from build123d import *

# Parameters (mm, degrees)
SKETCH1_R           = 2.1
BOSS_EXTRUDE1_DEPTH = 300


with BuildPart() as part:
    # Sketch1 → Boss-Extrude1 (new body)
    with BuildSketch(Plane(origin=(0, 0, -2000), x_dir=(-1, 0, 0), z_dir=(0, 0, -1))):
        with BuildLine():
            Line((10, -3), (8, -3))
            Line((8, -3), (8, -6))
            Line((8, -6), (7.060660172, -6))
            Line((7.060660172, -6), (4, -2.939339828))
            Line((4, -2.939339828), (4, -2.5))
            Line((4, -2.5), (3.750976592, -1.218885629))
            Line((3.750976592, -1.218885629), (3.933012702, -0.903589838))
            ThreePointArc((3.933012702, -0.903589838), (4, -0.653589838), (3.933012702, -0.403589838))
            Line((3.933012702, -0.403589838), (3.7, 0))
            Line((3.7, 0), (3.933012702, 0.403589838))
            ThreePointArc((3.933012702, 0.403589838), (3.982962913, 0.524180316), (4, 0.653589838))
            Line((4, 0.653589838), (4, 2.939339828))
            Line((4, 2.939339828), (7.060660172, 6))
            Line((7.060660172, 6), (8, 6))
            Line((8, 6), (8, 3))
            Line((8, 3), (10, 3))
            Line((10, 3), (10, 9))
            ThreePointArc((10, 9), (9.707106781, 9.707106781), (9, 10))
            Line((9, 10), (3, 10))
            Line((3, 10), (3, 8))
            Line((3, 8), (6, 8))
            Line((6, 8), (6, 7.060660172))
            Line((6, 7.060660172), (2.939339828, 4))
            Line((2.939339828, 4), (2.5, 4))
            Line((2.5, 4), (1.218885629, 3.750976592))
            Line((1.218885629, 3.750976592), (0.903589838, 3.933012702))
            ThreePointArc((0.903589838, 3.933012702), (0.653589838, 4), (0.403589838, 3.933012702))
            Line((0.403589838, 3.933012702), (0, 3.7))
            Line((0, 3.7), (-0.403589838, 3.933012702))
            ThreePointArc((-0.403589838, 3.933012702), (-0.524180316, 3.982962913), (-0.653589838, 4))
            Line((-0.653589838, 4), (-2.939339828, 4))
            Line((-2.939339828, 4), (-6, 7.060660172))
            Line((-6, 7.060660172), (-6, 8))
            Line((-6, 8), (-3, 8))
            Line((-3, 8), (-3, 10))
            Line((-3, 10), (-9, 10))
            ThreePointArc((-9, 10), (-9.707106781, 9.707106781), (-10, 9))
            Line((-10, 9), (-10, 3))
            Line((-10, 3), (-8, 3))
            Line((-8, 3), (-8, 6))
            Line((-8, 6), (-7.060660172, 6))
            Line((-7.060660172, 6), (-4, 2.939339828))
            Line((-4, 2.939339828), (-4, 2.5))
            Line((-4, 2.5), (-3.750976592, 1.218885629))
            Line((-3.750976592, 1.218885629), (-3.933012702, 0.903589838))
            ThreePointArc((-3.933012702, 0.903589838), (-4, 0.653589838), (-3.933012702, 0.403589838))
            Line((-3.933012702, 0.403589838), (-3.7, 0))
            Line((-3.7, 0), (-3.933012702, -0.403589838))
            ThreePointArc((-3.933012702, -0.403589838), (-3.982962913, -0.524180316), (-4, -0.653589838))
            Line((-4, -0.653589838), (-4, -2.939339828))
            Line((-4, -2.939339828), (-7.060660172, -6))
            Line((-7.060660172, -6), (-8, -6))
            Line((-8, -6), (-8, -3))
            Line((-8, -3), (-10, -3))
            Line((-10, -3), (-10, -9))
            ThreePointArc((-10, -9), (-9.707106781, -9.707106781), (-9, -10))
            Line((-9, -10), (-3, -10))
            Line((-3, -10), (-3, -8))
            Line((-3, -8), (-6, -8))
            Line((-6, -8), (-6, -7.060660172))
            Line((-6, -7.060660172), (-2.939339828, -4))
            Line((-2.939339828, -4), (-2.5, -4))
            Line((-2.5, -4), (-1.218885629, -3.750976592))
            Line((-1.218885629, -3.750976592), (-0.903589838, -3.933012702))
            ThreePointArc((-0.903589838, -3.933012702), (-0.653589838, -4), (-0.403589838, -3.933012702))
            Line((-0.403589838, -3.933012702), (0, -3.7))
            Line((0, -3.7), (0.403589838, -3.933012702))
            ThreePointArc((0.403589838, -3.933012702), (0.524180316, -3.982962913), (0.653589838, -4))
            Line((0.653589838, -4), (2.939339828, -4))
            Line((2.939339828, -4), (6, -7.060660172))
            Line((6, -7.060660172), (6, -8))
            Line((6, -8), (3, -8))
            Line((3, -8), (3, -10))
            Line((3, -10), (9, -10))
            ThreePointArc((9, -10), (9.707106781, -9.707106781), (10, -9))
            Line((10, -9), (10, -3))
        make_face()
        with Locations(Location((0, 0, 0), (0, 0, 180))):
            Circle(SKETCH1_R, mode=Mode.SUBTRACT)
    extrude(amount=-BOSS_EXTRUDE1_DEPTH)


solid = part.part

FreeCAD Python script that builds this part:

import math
import FreeCAD as App
import Part
import Sketcher
Q = App.Units.Quantity

doc = App.newDocument("Part")
body = doc.addObject("PartDesign::Body", "Body")

sketch1 = body.newObject("Sketcher::SketchObject", "Sketch")
sketch1.AttachmentSupport = (doc.getObject("XY_Plane"), [""])
sketch1.MapMode = "FlatFace"
sketch1.AttachmentOffset = App.Placement(App.Vector(0, 0, -2000), App.Rotation())
sketch1.addGeometry(Part.LineSegment(App.Vector(-10, -3, 0), App.Vector(-8, -3, 0)), False)
sketch1.addGeometry(Part.LineSegment(App.Vector(-8, -3, 0), App.Vector(-8, -6, 0)), False)
sketch1.addGeometry(Part.LineSegment(App.Vector(-8, -6, 0), App.Vector(-7.06, -6, 0)), False)
sketch1.addGeometry(Part.LineSegment(App.Vector(-7.06, -6, 0), App.Vector(-4, -2.94, 0)), False)
sketch1.addGeometry(Part.LineSegment(App.Vector(-4, -2.94, 0), App.Vector(-4, -2.5, 0)), False)
sketch1.addGeometry(Part.LineSegment(App.Vector(-4, -2.5, 0), App.Vector(-3.75, -1.22, 0)), False)
sketch1.addGeometry(Part.LineSegment(App.Vector(-3.75, -1.22, 0), App.Vector(-3.93, -0.9, 0)), False)
sketch1.addGeometry(Part.ArcOfCircle(Part.Circle(App.Vector(-3.5, -0.65, 0), App.Vector(0, 0, 1), 0.5), math.radians(150), math.radians(210)), False)
sketch1.addGeometry(Part.LineSegment(App.Vector(-3.93, -0.4, 0), App.Vector(-3.7, 0, 0)), False)
sketch1.addGeometry(Part.LineSegment(App.Vector(-3.7, 0, 0), App.Vector(-3.93, 0.4, 0)), False)
sketch1.addGeometry(Part.ArcOfCircle(Part.Circle(App.Vector(-3.5, 0.65, 0), App.Vector(0, 0, 1), 0.5), math.radians(-180), math.radians(-150)), False)
sketch1.addGeometry(Part.LineSegment(App.Vector(-4, 0.65, 0), App.Vector(-4, 2.94, 0)), False)
sketch1.addGeometry(Part.LineSegment(App.Vector(-4, 2.94, 0), App.Vector(-7.06, 6, 0)), False)
sketch1.addGeometry(Part.LineSegment(App.Vector(-7.06, 6, 0), App.Vector(-8, 6, 0)), False)
sketch1.addGeometry(Part.LineSegment(App.Vector(-8, 6, 0), App.Vector(-8, 3, 0)), False)
sketch1.addGeometry(Part.LineSegment(App.Vector(-8, 3, 0), App.Vector(-10, 3, 0)), False)
sketch1.addGeometry(Part.LineSegment(App.Vector(-10, 3, 0), App.Vector(-10, 9, 0)), False)
sketch1.addGeometry(Part.ArcOfCircle(Part.Circle(App.Vector(-9, 9, 0), App.Vector(0, 0, 1), 1), math.radians(90), math.radians(180)), False)
sketch1.addGeometry(Part.LineSegment(App.Vector(-9, 10, 0), App.Vector(-3, 10, 0)), False)
sketch1.addGeometry(Part.LineSegment(App.Vector(-3, 10, 0), App.Vector(-3, 8, 0)), False)
sketch1.addGeometry(Part.LineSegment(App.Vector(-3, 8, 0), App.Vector(-6, 8, 0)), False)
sketch1.addGeometry(Part.LineSegment(App.Vector(-6, 8, 0), App.Vector(-6, 7.06, 0)), False)
sketch1.addGeometry(Part.LineSegment(App.Vector(-6, 7.06, 0), App.Vector(-2.94, 4, 0)), False)
sketch1.addGeometry(Part.LineSegment(App.Vector(-2.94, 4, 0), App.Vector(-2.5, 4, 0)), False)
sketch1.addGeometry(Part.LineSegment(App.Vector(-2.5, 4, 0), App.Vector(-1.22, 3.75, 0)), False)
sketch1.addGeometry(Part.LineSegment(App.Vector(-1.22, 3.75, 0), App.Vector(-0.9, 3.93, 0)), False)
sketch1.addGeometry(Part.ArcOfCircle(Part.Circle(App.Vector(-0.65, 3.5, 0), App.Vector(0, 0, 1), 0.5), math.radians(60), math.radians(120)), False)
sketch1.addGeometry(Part.LineSegment(App.Vector(-0.4, 3.93, 0), App.Vector(0, 3.7, 0)), False)
sketch1.addGeometry(Part.LineSegment(App.Vector(0, 3.7, 0), App.Vector(0.4, 3.93, 0)), False)
sketch1.addGeometry(Part.ArcOfCircle(Part.Circle(App.Vector(0.65, 3.5, 0), App.Vector(0, 0, 1), 0.5), math.radians(90), math.radians(120)), False)
sketch1.addGeometry(Part.LineSegment(App.Vector(0.65, 4, 0), App.Vector(2.94, 4, 0)), False)
sketch1.addGeometry(Part.LineSegment(App.Vector(2.94, 4, 0), App.Vector(6, 7.06, 0)), False)
sketch1.addGeometry(Part.LineSegment(App.Vector(6, 7.06, 0), App.Vector(6, 8, 0)), False)
sketch1.addGeometry(Part.LineSegment(App.Vector(6, 8, 0), App.Vector(3, 8, 0)), False)
sketch1.addGeometry(Part.LineSegment(App.Vector(3, 8, 0), App.Vector(3, 10, 0)), False)
sketch1.addGeometry(Part.LineSegment(App.Vector(3, 10, 0), App.Vector(9, 10, 0)), False)
sketch1.addGeometry(Part.ArcOfCircle(Part.Circle(App.Vector(9, 9, 0), App.Vector(0, 0, 1), 1), math.radians(0), math.radians(90)), False)
sketch1.addGeometry(Part.LineSegment(App.Vector(10, 9, 0), App.Vector(10, 3, 0)), False)
sketch1.addGeometry(Part.LineSegment(App.Vector(10, 3, 0), App.Vector(8, 3, 0)), False)
sketch1.addGeometry(Part.LineSegment(App.Vector(8, 3, 0), App.Vector(8, 6, 0)), False)
sketch1.addGeometry(Part.LineSegment(App.Vector(8, 6, 0), App.Vector(7.06, 6, 0)), False)
sketch1.addGeometry(Part.LineSegment(App.Vector(7.06, 6, 0), App.Vector(4, 2.94, 0)), False)
sketch1.addGeometry(Part.LineSegment(App.Vector(4, 2.94, 0), App.Vector(4, 2.5, 0)), False)
sketch1.addGeometry(Part.LineSegment(App.Vector(4, 2.5, 0), App.Vector(3.75, 1.22, 0)), False)
sketch1.addGeometry(Part.LineSegment(App.Vector(3.75, 1.22, 0), App.Vector(3.93, 0.9, 0)), False)
sketch1.addGeometry(Part.ArcOfCircle(Part.Circle(App.Vector(3.5, 0.65, 0), App.Vector(0, 0, 1), 0.5), math.radians(-30), math.radians(30)), False)
sketch1.addGeometry(Part.LineSegment(App.Vector(3.93, 0.4, 0), App.Vector(3.7, 0, 0)), False)
sketch1.addGeometry(Part.LineSegment(App.Vector(3.7, 0, 0), App.Vector(3.93, -0.4, 0)), False)
sketch1.addGeometry(Part.ArcOfCircle(Part.Circle(App.Vector(3.5, -0.65, 0), App.Vector(0, 0, 1), 0.5), math.radians(0), math.radians(30)), False)
sketch1.addGeometry(Part.LineSegment(App.Vector(4, -0.65, 0), App.Vector(4, -2.94, 0)), False)
sketch1.addGeometry(Part.LineSegment(App.Vector(4, -2.94, 0), App.Vector(7.06, -6, 0)), False)
sketch1.addGeometry(Part.LineSegment(App.Vector(7.06, -6, 0), App.Vector(8, -6, 0)), False)
sketch1.addGeometry(Part.LineSegment(App.Vector(8, -6, 0), App.Vector(8, -3, 0)), False)
sketch1.addGeometry(Part.LineSegment(App.Vector(8, -3, 0), App.Vector(10, -3, 0)), False)
sketch1.addGeometry(Part.LineSegment(App.Vector(10, -3, 0), App.Vector(10, -9, 0)), False)
sketch1.addGeometry(Part.ArcOfCircle(Part.Circle(App.Vector(9, -9, 0), App.Vector(0, 0, 1), 1), math.radians(-90), math.radians(0)), False)
sketch1.addGeometry(Part.LineSegment(App.Vector(9, -10, 0), App.Vector(3, -10, 0)), False)
sketch1.addGeometry(Part.LineSegment(App.Vector(3, -10, 0), App.Vector(3, -8, 0)), False)
sketch1.addGeometry(Part.LineSegment(App.Vector(3, -8, 0), App.Vector(6, -8, 0)), False)
sketch1.addGeometry(Part.LineSegment(App.Vector(6, -8, 0), App.Vector(6, -7.06, 0)), False)
sketch1.addGeometry(Part.LineSegment(App.Vector(6, -7.06, 0), App.Vector(2.94, -4, 0)), False)
sketch1.addGeometry(Part.LineSegment(App.Vector(2.94, -4, 0), App.Vector(2.5, -4, 0)), False)
sketch1.addGeometry(Part.LineSegment(App.Vector(2.5, -4, 0), App.Vector(1.22, -3.75, 0)), False)
sketch1.addGeometry(Part.LineSegment(App.Vector(1.22, -3.75, 0), App.Vector(0.9, -3.93, 0)), False)
sketch1.addGeometry(Part.ArcOfCircle(Part.Circle(App.Vector(0.65, -3.5, 0), App.Vector(0, 0, 1), 0.5), math.radians(-120), math.radians(-60)), False)
sketch1.addGeometry(Part.LineSegment(App.Vector(0.4, -3.93, 0), App.Vector(0, -3.7, 0)), False)
sketch1.addGeometry(Part.LineSegment(App.Vector(0, -3.7, 0), App.Vector(-0.4, -3.93, 0)), False)
sketch1.addGeometry(Part.ArcOfCircle(Part.Circle(App.Vector(-0.65, -3.5, 0), App.Vector(0, 0, 1), 0.5), math.radians(-90), math.radians(-60)), False)
sketch1.addGeometry(Part.LineSegment(App.Vector(-0.65, -4, 0), App.Vector(-2.94, -4, 0)), False)
sketch1.addGeometry(Part.LineSegment(App.Vector(-2.94, -4, 0), App.Vector(-6, -7.06, 0)), False)
sketch1.addGeometry(Part.LineSegment(App.Vector(-6, -7.06, 0), App.Vector(-6, -8, 0)), False)
sketch1.addGeometry(Part.LineSegment(App.Vector(-6, -8, 0), App.Vector(-3, -8, 0)), False)
sketch1.addGeometry(Part.LineSegment(App.Vector(-3, -8, 0), App.Vector(-3, -10, 0)), False)
sketch1.addGeometry(Part.LineSegment(App.Vector(-3, -10, 0), App.Vector(-9, -10, 0)), False)
sketch1.addGeometry(Part.ArcOfCircle(Part.Circle(App.Vector(-9, -9, 0), App.Vector(0, 0, 1), 1), math.radians(-180), math.radians(-90)), False)
sketch1.addGeometry(Part.LineSegment(App.Vector(-10, -9, 0), App.Vector(-10, -3, 0)), False)
sketch1.addGeometry(Part.Circle(App.Vector(0, 0, 0), App.Vector(0, 0, 1), 2.1), False)
sketch1.addConstraint(Sketcher.Constraint("Coincident", 0, 2, 1, 1))
sketch1.addConstraint(Sketcher.Constraint("Coincident", 1, 2, 2, 1))
sketch1.addConstraint(Sketcher.Constraint("Coincident", 2, 2, 3, 1))
sketch1.addConstraint(Sketcher.Constraint("Coincident", 3, 2, 4, 1))
sketch1.addConstraint(Sketcher.Constraint("Coincident", 4, 2, 5, 1))
sketch1.addConstraint(Sketcher.Constraint("Coincident", 5, 2, 6, 1))
sketch1.addConstraint(Sketcher.Constraint("Tangent", 6, 2, 7, 2))
sketch1.addConstraint(Sketcher.Constraint("Tangent", 7, 1, 8, 1))
sketch1.addConstraint(Sketcher.Constraint("Coincident", 8, 2, 9, 1))
sketch1.addConstraint(Sketcher.Constraint("Tangent", 9, 2, 10, 2))
sketch1.addConstraint(Sketcher.Constraint("Tangent", 10, 1, 11, 1))
sketch1.addConstraint(Sketcher.Constraint("Coincident", 11, 2, 12, 1))
sketch1.addConstraint(Sketcher.Constraint("Coincident", 12, 2, 13, 1))
sketch1.addConstraint(Sketcher.Constraint("Coincident", 13, 2, 14, 1))
sketch1.addConstraint(Sketcher.Constraint("Coincident", 14, 2, 15, 1))
sketch1.addConstraint(Sketcher.Constraint("Coincident", 15, 2, 16, 1))
sketch1.addConstraint(Sketcher.Constraint("Tangent", 16, 2, 17, 2))
sketch1.addConstraint(Sketcher.Constraint("Tangent", 17, 1, 18, 1))
sketch1.addConstraint(Sketcher.Constraint("Coincident", 18, 2, 19, 1))
sketch1.addConstraint(Sketcher.Constraint("Coincident", 19, 2, 20, 1))
sketch1.addConstraint(Sketcher.Constraint("Coincident", 20, 2, 21, 1))
sketch1.addConstraint(Sketcher.Constraint("Coincident", 21, 2, 22, 1))
sketch1.addConstraint(Sketcher.Constraint("Coincident", 22, 2, 23, 1))
sketch1.addConstraint(Sketcher.Constraint("Coincident", 23, 2, 24, 1))
sketch1.addConstraint(Sketcher.Constraint("Coincident", 24, 2, 25, 1))
sketch1.addConstraint(Sketcher.Constraint("Tangent", 25, 2, 26, 2))
sketch1.addConstraint(Sketcher.Constraint("Tangent", 26, 1, 27, 1))
sketch1.addConstraint(Sketcher.Constraint("Coincident", 27, 2, 28, 1))
sketch1.addConstraint(Sketcher.Constraint("Tangent", 28, 2, 29, 2))
sketch1.addConstraint(Sketcher.Constraint("Tangent", 29, 1, 30, 1))
sketch1.addConstraint(Sketcher.Constraint("Coincident", 30, 2, 31, 1))
sketch1.addConstraint(Sketcher.Constraint("Coincident", 31, 2, 32, 1))
sketch1.addConstraint(Sketcher.Constraint("Coincident", 32, 2, 33, 1))
sketch1.addConstraint(Sketcher.Constraint("Coincident", 33, 2, 34, 1))
sketch1.addConstraint(Sketcher.Constraint("Coincident", 34, 2, 35, 1))
sketch1.addConstraint(Sketcher.Constraint("Tangent", 35, 2, 36, 2))
sketch1.addConstraint(Sketcher.Constraint("Tangent", 36, 1, 37, 1))
sketch1.addConstraint(Sketcher.Constraint("Coincident", 37, 2, 38, 1))
sketch1.addConstraint(Sketcher.Constraint("Coincident", 38, 2, 39, 1))
sketch1.addConstraint(Sketcher.Constraint("Coincident", 39, 2, 40, 1))
sketch1.addConstraint(Sketcher.Constraint("Coincident", 40, 2, 41, 1))
sketch1.addConstraint(Sketcher.Constraint("Coincident", 41, 2, 42, 1))
sketch1.addConstraint(Sketcher.Constraint("Coincident", 42, 2, 43, 1))
sketch1.addConstraint(Sketcher.Constraint("Coincident", 43, 2, 44, 1))
sketch1.addConstraint(Sketcher.Constraint("Tangent", 44, 2, 45, 2))
sketch1.addConstraint(Sketcher.Constraint("Tangent", 45, 1, 46, 1))
sketch1.addConstraint(Sketcher.Constraint("Coincident", 46, 2, 47, 1))
sketch1.addConstraint(Sketcher.Constraint("Tangent", 47, 2, 48, 2))
sketch1.addConstraint(Sketcher.Constraint("Tangent", 48, 1, 49, 1))
sketch1.addConstraint(Sketcher.Constraint("Coincident", 49, 2, 50, 1))
sketch1.addConstraint(Sketcher.Constraint("Coincident", 50, 2, 51, 1))
sketch1.addConstraint(Sketcher.Constraint("Coincident", 51, 2, 52, 1))
sketch1.addConstraint(Sketcher.Constraint("Coincident", 52, 2, 53, 1))
sketch1.addConstraint(Sketcher.Constraint("Coincident", 53, 2, 54, 1))
sketch1.addConstraint(Sketcher.Constraint("Tangent", 54, 2, 55, 2))
sketch1.addConstraint(Sketcher.Constraint("Tangent", 55, 1, 56, 1))
sketch1.addConstraint(Sketcher.Constraint("Coincident", 56, 2, 57, 1))
sketch1.addConstraint(Sketcher.Constraint("Coincident", 57, 2, 58, 1))
sketch1.addConstraint(Sketcher.Constraint("Coincident", 58, 2, 59, 1))
sketch1.addConstraint(Sketcher.Constraint("Coincident", 59, 2, 60, 1))
sketch1.addConstraint(Sketcher.Constraint("Coincident", 60, 2, 61, 1))
sketch1.addConstraint(Sketcher.Constraint("Coincident", 61, 2, 62, 1))
sketch1.addConstraint(Sketcher.Constraint("Coincident", 62, 2, 63, 1))
sketch1.addConstraint(Sketcher.Constraint("Tangent", 63, 2, 64, 2))
sketch1.addConstraint(Sketcher.Constraint("Tangent", 64, 1, 65, 1))
sketch1.addConstraint(Sketcher.Constraint("Coincident", 65, 2, 66, 1))
sketch1.addConstraint(Sketcher.Constraint("Tangent", 66, 2, 67, 2))
sketch1.addConstraint(Sketcher.Constraint("Tangent", 67, 1, 68, 1))
sketch1.addConstraint(Sketcher.Constraint("Coincident", 68, 2, 69, 1))
sketch1.addConstraint(Sketcher.Constraint("Coincident", 69, 2, 70, 1))
sketch1.addConstraint(Sketcher.Constraint("Coincident", 70, 2, 71, 1))
sketch1.addConstraint(Sketcher.Constraint("Coincident", 71, 2, 72, 1))
sketch1.addConstraint(Sketcher.Constraint("Coincident", 72, 2, 73, 1))
sketch1.addConstraint(Sketcher.Constraint("Tangent", 73, 2, 74, 2))
sketch1.addConstraint(Sketcher.Constraint("Tangent", 74, 1, 75, 1))
sketch1.addConstraint(Sketcher.Constraint("Coincident", 75, 2, 0, 1))
sketch1.addConstraint(Sketcher.Constraint("Horizontal", 0))
sketch1.addConstraint(Sketcher.Constraint("Vertical", 1))
sketch1.addConstraint(Sketcher.Constraint("Horizontal", 2))
sketch1.addConstraint(Sketcher.Constraint("Vertical", 4))
sketch1.addConstraint(Sketcher.Constraint("Vertical", 11))
sketch1.addConstraint(Sketcher.Constraint("Horizontal", 13))
sketch1.addConstraint(Sketcher.Constraint("Vertical", 14))
sketch1.addConstraint(Sketcher.Constraint("Horizontal", 15))
sketch1.addConstraint(Sketcher.Constraint("Vertical", 16))
sketch1.addConstraint(Sketcher.Constraint("Horizontal", 18))
sketch1.addConstraint(Sketcher.Constraint("Vertical", 19))
sketch1.addConstraint(Sketcher.Constraint("Horizontal", 20))
sketch1.addConstraint(Sketcher.Constraint("Vertical", 21))
sketch1.addConstraint(Sketcher.Constraint("Horizontal", 23))
sketch1.addConstraint(Sketcher.Constraint("Horizontal", 30))
sketch1.addConstraint(Sketcher.Constraint("Vertical", 32))
sketch1.addConstraint(Sketcher.Constraint("Horizontal", 33))
sketch1.addConstraint(Sketcher.Constraint("Vertical", 34))
sketch1.addConstraint(Sketcher.Constraint("Horizontal", 35))
sketch1.addConstraint(Sketcher.Constraint("Vertical", 37))
sketch1.addConstraint(Sketcher.Constraint("Horizontal", 38))
sketch1.addConstraint(Sketcher.Constraint("Vertical", 39))
sketch1.addConstraint(Sketcher.Constraint("Horizontal", 40))
sketch1.addConstraint(Sketcher.Constraint("Vertical", 42))
sketch1.addConstraint(Sketcher.Constraint("Vertical", 49))
sketch1.addConstraint(Sketcher.Constraint("Horizontal", 51))
sketch1.addConstraint(Sketcher.Constraint("Vertical", 52))
sketch1.addConstraint(Sketcher.Constraint("Horizontal", 53))
sketch1.addConstraint(Sketcher.Constraint("Vertical", 54))
sketch1.addConstraint(Sketcher.Constraint("Horizontal", 56))
sketch1.addConstraint(Sketcher.Constraint("Vertical", 57))
sketch1.addConstraint(Sketcher.Constraint("Horizontal", 58))
sketch1.addConstraint(Sketcher.Constraint("Vertical", 59))
sketch1.addConstraint(Sketcher.Constraint("Horizontal", 61))
sketch1.addConstraint(Sketcher.Constraint("Horizontal", 68))
sketch1.addConstraint(Sketcher.Constraint("Vertical", 70))
sketch1.addConstraint(Sketcher.Constraint("Horizontal", 71))
sketch1.addConstraint(Sketcher.Constraint("Vertical", 72))
sketch1.addConstraint(Sketcher.Constraint("Horizontal", 73))
sketch1.addConstraint(Sketcher.Constraint("Vertical", 75))
sketch1.addConstraint(Sketcher.Constraint("Coincident", 76, 3, -1, 1))
sketch1.addConstraint(Sketcher.Constraint("Equal", 7, 10))
sketch1.addConstraint(Sketcher.Constraint("Equal", 10, 26))
sketch1.addConstraint(Sketcher.Constraint("Equal", 26, 29))
sketch1.addConstraint(Sketcher.Constraint("Equal", 17, 36))
sketch1.addConstraint(Sketcher.Constraint("Equal", 29, 45))
sketch1.addConstraint(Sketcher.Constraint("Equal", 45, 48))
sketch1.addConstraint(Sketcher.Constraint("Equal", 36, 55))
sketch1.addConstraint(Sketcher.Constraint("Equal", 48, 64))
sketch1.addConstraint(Sketcher.Constraint("Equal", 64, 67))
sketch1.addConstraint(Sketcher.Constraint("Equal", 55, 74))
sketch1.addConstraint(Sketcher.Constraint("Symmetric", 7, 3, 45, 3, -1, 1))
sketch1.addConstraint(Sketcher.Constraint("Symmetric", 10, 3, 48, 3, -1, 1))
sketch1.addConstraint(Sketcher.Constraint("Symmetric", 17, 3, 55, 3, -1, 1))
sketch1.addConstraint(Sketcher.Constraint("Symmetric", 26, 3, 64, 3, -1, 1))
sketch1.addConstraint(Sketcher.Constraint("Symmetric", 29, 3, 67, 3, -1, 1))
sketch1.addConstraint(Sketcher.Constraint("Symmetric", 36, 3, 74, 3, -1, 1))
sketch1.addConstraint(Sketcher.Constraint("Symmetric", 0, 2, 38, 2, -1, 1))
sketch1.addConstraint(Sketcher.Constraint("Symmetric", 2, 2, 40, 2, -1, 1))
sketch1.addConstraint(Sketcher.Constraint("Symmetric", 3, 2, 41, 2, -1, 1))
sketch1.addConstraint(Sketcher.Constraint("Symmetric", 5, 2, 43, 2, -1, 1))
sketch1.addConstraint(Sketcher.Constraint("Symmetric", 8, 2, 46, 2, -1, 1))
sketch1.addConstraint(Sketcher.Constraint("Symmetric", 12, 2, 50, 2, -1, 1))
sketch1.addConstraint(Sketcher.Constraint("Symmetric", 14, 2, 52, 2, -1, 1))
sketch1.addConstraint(Sketcher.Constraint("Symmetric", 19, 2, 57, 2, -1, 1))
sketch1.addConstraint(Sketcher.Constraint("Symmetric", 21, 2, 59, 2, -1, 1))
sketch1.addConstraint(Sketcher.Constraint("Symmetric", 22, 2, 60, 2, -1, 1))
sketch1.addConstraint(Sketcher.Constraint("Symmetric", 24, 2, 62, 2, -1, 1))
sketch1.addConstraint(Sketcher.Constraint("Symmetric", 27, 2, 65, 2, -1, 1))
sketch1.addConstraint(Sketcher.Constraint("Symmetric", 31, 2, 69, 2, -1, 1))
sketch1.addConstraint(Sketcher.Constraint("Symmetric", 33, 2, 71, 2, -1, 1))
sketch1.addConstraint(Sketcher.Constraint("Symmetric", 26, 3, 29, 3, -2))
sketch1.addConstraint(Sketcher.Constraint("Symmetric", 17, 3, 36, 3, -2))
sketch1.addConstraint(Sketcher.Constraint("Symmetric", 10, 3, 45, 3, -2))
sketch1.addConstraint(Sketcher.Constraint("Symmetric", 22, 2, 30, 2, -2))
sketch1.addConstraint(Sketcher.Constraint("Symmetric", 21, 2, 31, 2, -2))
sketch1.addConstraint(Sketcher.Constraint("Symmetric", 19, 2, 33, 2, -2))
sketch1.addConstraint(Sketcher.Constraint("Symmetric", 14, 2, 38, 2, -2))
sketch1.addConstraint(Sketcher.Constraint("Symmetric", 12, 2, 40, 2, -2))
sketch1.addConstraint(Sketcher.Constraint("Symmetric", 11, 2, 41, 2, -2))
sketch1.addConstraint(Sketcher.Constraint("PointOnObject", 8, 2, -1))
sketch1.addConstraint(Sketcher.Constraint("PointOnObject", 27, 2, -2))
sketch1.addConstraint(Sketcher.Constraint("Parallel", 6, 9))
sketch1.addConstraint(Sketcher.Constraint("Perpendicular", 3, 12))
sketch1.addConstraint(Sketcher.Constraint("Parallel", 12, 22))
sketch1.addConstraint(Sketcher.Constraint("Perpendicular", 5, 24))
sketch1.addConstraint(Sketcher.Constraint("Perpendicular", 9, 25))
sketch1.addConstraint(Sketcher.Constraint("Perpendicular", 8, 27))
sketch1.addConstraint(Sketcher.Constraint("Perpendicular", 24, 43))
sketch1.addConstraint(Sketcher.Constraint("Perpendicular", 41, 50))
sketch1.addConstraint(Sketcher.Constraint("Perpendicular", 43, 62))
sketch1.addConstraint(Sketcher.Constraint("Perpendicular", 60, 69))
sketch1.addConstraint(Sketcher.Constraint("Equal", 71, 1))
sketch1.addConstraint(Sketcher.Constraint("Equal", 61, 4))
sketch1.addConstraint(Sketcher.Constraint("Equal", 68, 11))
sketch1.addConstraint(Sketcher.Constraint("Equal", 73, 16))
sketch1.addConstraint(Sketcher.Constraint("Equal", 53, 19))
sketch1.addConstraint(Sketcher.Constraint("Equal", 51, 21))
sketch1.addConstraint(Sketcher.Constraint("Equal", 12, 22))
sketch1.addConstraint(Sketcher.Constraint("Equal", 9, 27))
sketch1.addConstraint(Sketcher.Constraint("Radius", 17, 1.0))
sketch1.addConstraint(Sketcher.Constraint("Diameter", 76, 4.2))
sketch1.addConstraint(Sketcher.Constraint("Radius", 7, 0.5))
sketch1.addConstraint(Sketcher.Constraint("DistanceX", 0, 1, 0, 2, 2.0))
sketch1.addConstraint(Sketcher.Constraint("DistanceX", 18, 1, 18, 2, 6.0))
sketch1.addConstraint(Sketcher.Constraint("DistanceX", 20, 2, 20, 1, 3.0))
sketch1.addConstraint(Sketcher.Constraint("Angle", 5, Q("79 deg")))
sketch1.addConstraint(Sketcher.Constraint("Angle", 6, Q("120 deg")))
sketch1.addConstraint(Sketcher.Constraint("DistanceX", 17, 3, -1, 1, 9.0))
sketch1.addConstraint(Sketcher.Constraint("DistanceX", 3, 2, -1, 1, 4.0))
sketch1.addConstraint(Sketcher.Constraint("DistanceY", 4, 2, -1, 1, 2.5))
sketch1.addConstraint(Sketcher.Constraint("DistanceX", 8, 2, -1, 1, 3.7))
sketch1.addConstraint(Sketcher.Constraint("DistanceX", 2, 1, 2, 2, 0.93934))
pad1 = body.newObject("PartDesign::Pad", "Pad")
pad1.Profile = sketch1
pad1.Length = 300

doc.recompute()
